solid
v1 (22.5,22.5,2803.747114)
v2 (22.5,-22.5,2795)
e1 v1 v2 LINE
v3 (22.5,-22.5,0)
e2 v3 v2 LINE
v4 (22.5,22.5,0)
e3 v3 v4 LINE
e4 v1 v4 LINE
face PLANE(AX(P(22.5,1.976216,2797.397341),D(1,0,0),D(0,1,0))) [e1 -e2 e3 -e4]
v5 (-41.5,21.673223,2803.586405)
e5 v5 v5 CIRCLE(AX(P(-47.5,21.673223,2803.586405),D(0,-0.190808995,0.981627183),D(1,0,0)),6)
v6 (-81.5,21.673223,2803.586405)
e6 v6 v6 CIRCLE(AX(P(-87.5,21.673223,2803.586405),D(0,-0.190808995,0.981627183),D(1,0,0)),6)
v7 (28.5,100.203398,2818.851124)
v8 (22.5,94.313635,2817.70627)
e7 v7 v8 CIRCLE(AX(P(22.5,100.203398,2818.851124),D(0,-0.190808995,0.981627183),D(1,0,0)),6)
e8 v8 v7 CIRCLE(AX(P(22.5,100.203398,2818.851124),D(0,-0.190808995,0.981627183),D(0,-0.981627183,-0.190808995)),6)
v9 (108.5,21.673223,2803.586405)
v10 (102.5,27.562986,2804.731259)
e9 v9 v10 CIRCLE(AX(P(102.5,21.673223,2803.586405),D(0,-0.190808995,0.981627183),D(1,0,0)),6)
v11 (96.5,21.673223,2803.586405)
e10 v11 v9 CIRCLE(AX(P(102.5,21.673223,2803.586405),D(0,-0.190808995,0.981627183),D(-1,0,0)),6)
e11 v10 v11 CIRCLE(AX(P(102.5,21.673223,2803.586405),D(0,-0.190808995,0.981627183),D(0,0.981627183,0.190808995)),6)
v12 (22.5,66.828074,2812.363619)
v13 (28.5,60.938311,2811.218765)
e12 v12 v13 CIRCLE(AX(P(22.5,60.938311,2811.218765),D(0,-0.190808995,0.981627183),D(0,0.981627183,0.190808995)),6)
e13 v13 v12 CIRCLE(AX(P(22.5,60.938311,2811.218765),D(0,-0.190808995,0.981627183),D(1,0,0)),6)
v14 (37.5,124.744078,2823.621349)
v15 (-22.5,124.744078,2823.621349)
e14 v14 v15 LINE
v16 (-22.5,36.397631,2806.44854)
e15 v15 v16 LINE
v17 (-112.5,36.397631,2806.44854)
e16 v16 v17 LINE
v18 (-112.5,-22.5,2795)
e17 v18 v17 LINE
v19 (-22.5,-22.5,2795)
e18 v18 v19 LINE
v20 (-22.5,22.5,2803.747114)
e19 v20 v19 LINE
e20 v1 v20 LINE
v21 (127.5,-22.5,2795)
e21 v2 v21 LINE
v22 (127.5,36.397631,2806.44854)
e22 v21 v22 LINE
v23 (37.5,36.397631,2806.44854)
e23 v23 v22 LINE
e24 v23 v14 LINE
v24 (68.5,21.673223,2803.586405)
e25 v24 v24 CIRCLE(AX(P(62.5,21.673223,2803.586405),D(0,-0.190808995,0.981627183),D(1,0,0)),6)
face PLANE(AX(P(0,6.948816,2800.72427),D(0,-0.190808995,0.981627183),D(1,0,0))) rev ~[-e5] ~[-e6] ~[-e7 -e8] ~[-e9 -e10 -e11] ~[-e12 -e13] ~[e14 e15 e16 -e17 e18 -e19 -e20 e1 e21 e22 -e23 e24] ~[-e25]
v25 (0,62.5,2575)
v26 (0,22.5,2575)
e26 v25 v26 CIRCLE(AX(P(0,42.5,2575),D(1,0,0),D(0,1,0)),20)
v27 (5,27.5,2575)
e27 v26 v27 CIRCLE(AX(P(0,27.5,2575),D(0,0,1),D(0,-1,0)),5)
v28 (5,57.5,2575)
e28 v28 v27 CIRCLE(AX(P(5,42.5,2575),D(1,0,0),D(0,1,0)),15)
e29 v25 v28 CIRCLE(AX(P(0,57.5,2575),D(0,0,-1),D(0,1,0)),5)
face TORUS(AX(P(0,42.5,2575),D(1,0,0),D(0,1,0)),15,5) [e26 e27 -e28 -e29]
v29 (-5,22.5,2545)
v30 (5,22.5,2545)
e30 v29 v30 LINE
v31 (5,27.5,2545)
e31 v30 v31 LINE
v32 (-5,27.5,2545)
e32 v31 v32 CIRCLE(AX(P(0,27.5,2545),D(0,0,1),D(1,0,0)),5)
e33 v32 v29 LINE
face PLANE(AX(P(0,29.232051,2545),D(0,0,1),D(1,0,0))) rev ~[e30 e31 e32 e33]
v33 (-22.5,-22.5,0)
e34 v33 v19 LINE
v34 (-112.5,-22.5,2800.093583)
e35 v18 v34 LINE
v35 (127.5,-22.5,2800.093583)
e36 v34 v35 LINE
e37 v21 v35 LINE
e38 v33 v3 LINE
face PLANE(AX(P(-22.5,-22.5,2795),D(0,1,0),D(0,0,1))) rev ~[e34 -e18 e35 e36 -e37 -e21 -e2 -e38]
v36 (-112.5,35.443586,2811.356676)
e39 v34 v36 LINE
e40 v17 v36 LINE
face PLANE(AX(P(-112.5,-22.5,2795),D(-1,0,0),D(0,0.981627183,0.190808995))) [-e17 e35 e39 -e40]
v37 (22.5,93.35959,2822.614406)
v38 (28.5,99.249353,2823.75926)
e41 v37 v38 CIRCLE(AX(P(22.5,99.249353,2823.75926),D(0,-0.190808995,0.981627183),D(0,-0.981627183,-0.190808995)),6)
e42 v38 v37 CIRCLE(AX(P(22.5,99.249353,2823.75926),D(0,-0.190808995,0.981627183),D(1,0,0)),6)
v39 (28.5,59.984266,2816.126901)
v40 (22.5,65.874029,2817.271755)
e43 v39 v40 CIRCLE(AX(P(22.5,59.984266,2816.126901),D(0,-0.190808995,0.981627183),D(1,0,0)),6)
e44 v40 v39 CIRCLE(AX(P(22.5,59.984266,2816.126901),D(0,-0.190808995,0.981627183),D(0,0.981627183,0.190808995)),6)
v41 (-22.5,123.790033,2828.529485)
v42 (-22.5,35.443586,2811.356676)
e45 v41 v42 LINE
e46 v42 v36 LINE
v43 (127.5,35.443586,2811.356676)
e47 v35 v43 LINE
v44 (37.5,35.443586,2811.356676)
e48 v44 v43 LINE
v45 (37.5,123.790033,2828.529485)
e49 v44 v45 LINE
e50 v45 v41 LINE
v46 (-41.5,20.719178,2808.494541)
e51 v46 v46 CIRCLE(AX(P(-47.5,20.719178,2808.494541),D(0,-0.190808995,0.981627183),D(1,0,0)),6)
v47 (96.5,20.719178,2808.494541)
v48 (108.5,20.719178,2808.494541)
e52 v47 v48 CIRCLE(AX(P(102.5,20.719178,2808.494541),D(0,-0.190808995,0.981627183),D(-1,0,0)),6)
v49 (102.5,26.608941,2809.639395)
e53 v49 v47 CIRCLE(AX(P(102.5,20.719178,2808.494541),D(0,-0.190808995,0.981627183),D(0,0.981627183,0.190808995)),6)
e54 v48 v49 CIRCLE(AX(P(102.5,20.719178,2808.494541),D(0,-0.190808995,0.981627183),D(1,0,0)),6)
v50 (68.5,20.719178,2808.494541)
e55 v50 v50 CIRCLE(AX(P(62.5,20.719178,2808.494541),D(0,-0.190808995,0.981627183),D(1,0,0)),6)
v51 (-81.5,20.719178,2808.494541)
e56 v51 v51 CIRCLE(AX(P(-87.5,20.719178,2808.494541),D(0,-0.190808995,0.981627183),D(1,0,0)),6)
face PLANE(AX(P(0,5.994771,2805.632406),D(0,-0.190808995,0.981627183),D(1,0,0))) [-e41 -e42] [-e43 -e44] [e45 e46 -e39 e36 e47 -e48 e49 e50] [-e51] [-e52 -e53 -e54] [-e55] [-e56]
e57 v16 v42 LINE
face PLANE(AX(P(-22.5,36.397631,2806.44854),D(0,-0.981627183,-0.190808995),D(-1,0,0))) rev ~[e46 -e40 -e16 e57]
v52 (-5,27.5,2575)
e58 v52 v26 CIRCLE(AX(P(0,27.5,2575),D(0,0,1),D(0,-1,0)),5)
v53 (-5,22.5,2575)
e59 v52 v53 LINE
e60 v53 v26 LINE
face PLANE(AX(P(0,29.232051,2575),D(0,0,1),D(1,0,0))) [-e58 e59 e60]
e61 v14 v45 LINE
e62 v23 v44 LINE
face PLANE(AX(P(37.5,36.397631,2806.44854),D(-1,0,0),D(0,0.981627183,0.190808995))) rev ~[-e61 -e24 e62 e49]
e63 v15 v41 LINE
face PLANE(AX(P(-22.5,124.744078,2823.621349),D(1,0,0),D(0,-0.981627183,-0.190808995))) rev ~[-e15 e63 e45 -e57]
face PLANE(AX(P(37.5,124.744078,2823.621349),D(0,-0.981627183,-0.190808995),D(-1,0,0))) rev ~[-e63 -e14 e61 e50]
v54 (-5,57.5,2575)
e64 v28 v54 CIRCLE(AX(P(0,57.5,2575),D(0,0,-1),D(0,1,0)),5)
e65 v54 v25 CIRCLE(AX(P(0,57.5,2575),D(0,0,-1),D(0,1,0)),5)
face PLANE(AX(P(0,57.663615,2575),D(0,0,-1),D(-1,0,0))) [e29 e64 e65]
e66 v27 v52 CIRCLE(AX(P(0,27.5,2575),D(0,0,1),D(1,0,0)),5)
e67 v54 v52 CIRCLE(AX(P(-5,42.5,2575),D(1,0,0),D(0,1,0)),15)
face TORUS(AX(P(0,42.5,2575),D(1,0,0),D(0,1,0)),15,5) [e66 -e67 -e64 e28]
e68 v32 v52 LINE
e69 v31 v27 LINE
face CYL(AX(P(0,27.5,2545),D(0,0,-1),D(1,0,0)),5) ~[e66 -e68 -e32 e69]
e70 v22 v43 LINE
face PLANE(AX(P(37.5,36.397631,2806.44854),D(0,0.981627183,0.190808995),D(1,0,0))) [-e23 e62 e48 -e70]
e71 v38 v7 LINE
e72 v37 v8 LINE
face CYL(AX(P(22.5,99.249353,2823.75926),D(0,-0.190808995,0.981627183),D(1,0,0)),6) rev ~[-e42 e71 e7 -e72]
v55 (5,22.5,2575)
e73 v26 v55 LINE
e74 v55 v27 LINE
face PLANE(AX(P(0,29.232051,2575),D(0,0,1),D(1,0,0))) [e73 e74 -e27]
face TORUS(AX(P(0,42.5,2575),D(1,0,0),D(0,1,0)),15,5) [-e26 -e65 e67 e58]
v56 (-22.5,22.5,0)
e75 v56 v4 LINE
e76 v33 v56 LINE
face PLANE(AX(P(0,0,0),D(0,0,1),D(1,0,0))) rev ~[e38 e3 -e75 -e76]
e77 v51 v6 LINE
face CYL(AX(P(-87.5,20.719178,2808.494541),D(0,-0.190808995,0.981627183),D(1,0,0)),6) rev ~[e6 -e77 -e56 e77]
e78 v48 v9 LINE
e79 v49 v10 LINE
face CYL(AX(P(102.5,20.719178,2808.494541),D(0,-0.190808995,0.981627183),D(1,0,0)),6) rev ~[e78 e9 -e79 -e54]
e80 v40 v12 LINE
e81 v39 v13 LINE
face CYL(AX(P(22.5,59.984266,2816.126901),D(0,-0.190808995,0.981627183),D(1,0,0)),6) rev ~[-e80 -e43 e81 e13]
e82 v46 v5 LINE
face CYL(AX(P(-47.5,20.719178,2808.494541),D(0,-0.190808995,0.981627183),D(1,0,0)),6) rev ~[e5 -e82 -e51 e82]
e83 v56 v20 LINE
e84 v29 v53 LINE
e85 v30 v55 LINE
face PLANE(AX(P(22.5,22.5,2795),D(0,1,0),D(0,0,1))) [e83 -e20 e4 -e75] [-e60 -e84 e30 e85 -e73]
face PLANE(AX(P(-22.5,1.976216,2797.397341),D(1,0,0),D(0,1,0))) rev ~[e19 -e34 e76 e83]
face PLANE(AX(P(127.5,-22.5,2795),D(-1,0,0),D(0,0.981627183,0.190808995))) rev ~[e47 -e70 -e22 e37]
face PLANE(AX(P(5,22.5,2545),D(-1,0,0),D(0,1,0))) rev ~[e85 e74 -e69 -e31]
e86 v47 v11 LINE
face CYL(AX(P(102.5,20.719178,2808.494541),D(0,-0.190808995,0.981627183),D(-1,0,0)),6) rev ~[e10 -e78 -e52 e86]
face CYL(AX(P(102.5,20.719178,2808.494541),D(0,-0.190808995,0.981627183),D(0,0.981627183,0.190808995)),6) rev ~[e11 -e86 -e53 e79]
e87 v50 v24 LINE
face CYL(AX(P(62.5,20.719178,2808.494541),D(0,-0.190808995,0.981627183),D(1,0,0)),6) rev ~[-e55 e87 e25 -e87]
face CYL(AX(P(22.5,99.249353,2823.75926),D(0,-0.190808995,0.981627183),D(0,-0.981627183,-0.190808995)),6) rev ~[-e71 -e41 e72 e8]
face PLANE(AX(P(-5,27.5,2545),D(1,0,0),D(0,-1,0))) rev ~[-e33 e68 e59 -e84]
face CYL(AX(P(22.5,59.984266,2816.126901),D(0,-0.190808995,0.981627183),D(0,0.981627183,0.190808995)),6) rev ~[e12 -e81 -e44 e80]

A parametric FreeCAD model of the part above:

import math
import FreeCAD as App
import Part
import Sketcher
from FreeCAD import Vector
Q = App.Units.Quantity


def add_polygon(sketch, points):
    """Adds a closed chain of lines whose ends are joined by coincident constraints."""
    first, n = sketch.GeometryCount, len(points)
    for a, b in zip(points, points[1:] + points[:1]):
        sketch.addGeometry(Part.LineSegment(App.Vector(*a, 0), App.Vector(*b, 0)), False)
    for i in range(n):
        sketch.addConstraint(Sketcher.Constraint("Coincident", first + i, 2, first + (i + 1) % n, 1))

doc = App.newDocument("Part")
params = doc.addObject("Spreadsheet::Sheet", "Params")
for row, (alias, value) in enumerate([
    ("sketch1_width", "45 mm"),
    ("pad1_length", "2795 mm"),
    ("sketch2_width", "90 mm"),
    ("sketch2_width2", "240 mm"),
    ("pad2_length", "5 mm"),
    ("sketch3_width", "45 mm"),
    ("pad3_length", "45 mm"),
    ("sketch5_diameter", "12 mm"),
    ("sketch6_radius", "5 mm"),
    ("sketch6_height", "5 mm"),
    ("pad4_length", "30 mm"),
    ("sketch7_radius", "5 mm"),
    ("sketch8_radius", "15 mm"),
], start=1):
    params.set(f"A{row}", alias)
    params.set(f"B{row}", "=" + value)
    params.setAlias(f"B{row}", alias)

body = doc.addObject("PartDesign::Body", "Body")

# Sketch on XY plane
sketch1 = body.newObject("Sketcher::SketchObject", "Sketch")
sketch1.AttachmentSupport = (doc.getObject("XY_Plane"), [""])
sketch1.MapMode = "FlatFace"
add_polygon(sketch1, [(-22, 22), (-22, -22), (22, -22), (22, 22)])  # lines 0-3
sketch1.addConstraint([
    Sketcher.Constraint("Vertical", 0),
    Sketcher.Constraint("Horizontal", 1),
    Sketcher.Constraint("Vertical", 2),
    Sketcher.Constraint("Horizontal", 3),
    Sketcher.Constraint("Symmetric", 0, 2, 2, 2, -1, 1),
    Sketcher.Constraint("Equal", 3, 0),
    Sketcher.Constraint("DistanceX", 1, 1, 1, 2, 45.0),
])
sketch1.setExpression("Constraints[10]", "Params.sketch1_width")
pad1 = body.newObject("PartDesign::Pad", "Pad")
pad1.Profile = sketch1
pad1.setExpression("Length", "Params.pad1_length")
body2 = doc.addObject("PartDesign::Body", "Body001")

# Sketch on an angled plane
sketch2 = body2.newObject("Sketcher::SketchObject", "Sketch001")
sketch2.Placement = App.Placement(Vector(0, -524.331896, 2697.453761), App.Rotation(Vector(1, 0, 0), Vector(0, 0.981627183, 0.190808995), Vector(0, -0.190808995, 0.981627183), "ZXY"))
add_polygon(sketch2, [(-22, 571), (-112, 571), (-112, 511), (128, 511), (128, 571), (38, 571), (38, 661), (-22, 661)])  # lines 0-7
sketch2.addConstraint([
    Sketcher.Constraint("Horizontal", 0),
    Sketcher.Constraint("Vertical", 1),
    Sketcher.Constraint("Horizontal", 2),
    Sketcher.Constraint("Vertical", 3),
    Sketcher.Constraint("Horizontal", 4),
    Sketcher.Constraint("Vertical", 5),
    Sketcher.Constraint("Horizontal", 6),
    Sketcher.Constraint("Vertical", 7),
    Sketcher.Constraint("Horizontal", 0, 2, 3, 2),
    Sketcher.Constraint("Equal", 0, 4),
    Sketcher.Constraint("Equal", 6, 1),
    Sketcher.Constraint("Equal", 4, 5),
    Sketcher.Constraint("DistanceX", 0, 2, 0, 1, 90.0),
    Sketcher.Constraint("DistanceX", 2, 1, 2, 2, 240.0),
    Sketcher.Constraint("DistanceX", 0, 2, -1, 1, 112.5),
    Sketcher.Constraint("DistanceY", -1, 1, 0, 2, 571.22453),
])
sketch2.setExpression("Constraints[20]", "Params.sketch2_width")
sketch2.setExpression("Constraints[21]", "Params.sketch2_width2")
pad2 = body2.newObject("PartDesign::Pad", "Pad001")
pad2.Profile = sketch2
pad2.setExpression("Length", "Params.pad2_length")
body3 = doc.addObject("PartDesign::Body", "Body002")

# Sketch on YZ plane
sketch3 = body3.newObject("Sketcher::SketchObject", "Sketch002")
sketch3.AttachmentSupport = (doc.getObject("YZ_Plane002"), [""])
sketch3.MapMode = "FlatFace"
sketch3.AttachmentOffset = App.Placement(Vector(0, 0, 22.5), App.Rotation())
add_polygon(sketch3, [(-22, 2795), (22, 2795), (22, 2804)])  # lines 0-2
sketch3.addConstraint([
    Sketcher.Constraint("Horizontal", 0),
    Sketcher.Constraint("Vertical", 1),
    Sketcher.Constraint("DistanceX", 0, 1, 0, 2, 45.0),
    Sketcher.Constraint("Angle", 2, Q("-169 deg")),
    Sketcher.Constraint("DistanceY", -1, 1, 0, 2, 2795.0),
    Sketcher.Constraint("DistanceX", -1, 1, 0, 2, 22.5),
])
sketch3.setExpression("Constraints[5]", "Params.sketch3_width")
pad3 = body3.newObject("PartDesign::Pad", "Pad002")
pad3.Profile = sketch3
pad3.setExpression("Length", "Params.pad3_length")
pad3.Reversed = True
doc.recompute()

boolean = body.newObject("PartDesign::Boolean", "Boolean")
boolean.Type = "Fuse"
boolean.addObjects([body3])
doc.recompute()

boolean2 = body.newObject("PartDesign::Boolean", "Boolean001")
boolean2.Type = "Fuse"
boolean2.addObjects([body2])

# Sketch on YZ plane
sketch4 = body.newObject("Sketcher::SketchObject", "Sketch003")
sketch4.AttachmentSupport = (doc.getObject("YZ_Plane"), [""])
sketch4.MapMode = "FlatFace"
sketch4.AttachmentOffset = App.Placement(Vector(0, 0, -22.5), App.Rotation())
add_polygon(sketch4, [(-22.5, 2800.7), (-22.5, 2795), (-25.3, 2795), (-25.3, 2800.7)])  # lines 0-3
sketch4.addConstraint([
    Sketcher.Constraint("Vertical", 0),
    Sketcher.Constraint("Horizontal", 1),
    Sketcher.Constraint("Vertical", 2),
    Sketcher.Constraint("Horizontal", 3),
    Sketcher.Constraint("DistanceY", -1, 1, 0, 2, 2795.0),
    Sketcher.Constraint("DistanceX", 0, 2, -1, 1, 22.5),
    Sketcher.Constraint("DistanceX", 1, 2, 1, 1, 2.779846),
    Sketcher.Constraint("DistanceY", 0, 2, 0, 1, 5.708294),
])
pocket1 = body.newObject("PartDesign::Pocket", "Pocket")
pocket1.Profile = sketch4
pocket1.Type = "ThroughAll"
pocket1.Midplane = True

# Sketch on an angled plane
sketch5 = body.newObject("Sketcher::SketchObject", "Sketch004")
sketch5.Placement = App.Placement(Vector(0, -525.285941, 2702.361897), App.Rotation(Vector(1, 0, 0), Vector(0, 0.981627183, 0.190808995), Vector(0, -0.190808995, 0.981627183), "ZXY"))
sketch5.addGeometry([
    Part.ArcOfCircle(Part.Circle(Vector(102, 556, 0), Vector(0, 0, 1), 6), math.radians(0), math.radians(90)),  # 0
    Part.ArcOfCircle(Part.Circle(Vector(102, 556, 0), Vector(0, 0, 1), 6), math.radians(90), math.radians(180)),  # 1
    Part.ArcOfCircle(Part.Circle(Vector(102, 556, 0), Vector(0, 0, 1), 6), math.radians(180), math.radians(360)),  # 2
    Part.Circle(Vector(62, 556, 0), Vector(0, 0, 1), 6),  # 3
    Part.ArcOfCircle(Part.Circle(Vector(22, 636, 0), Vector(0, 0, 1), 6), math.radians(-90), math.radians(0)),  # 4
    Part.ArcOfCircle(Part.Circle(Vector(22, 636, 0), Vector(0, 0, 1), 6), math.radians(0), math.radians(270)),  # 5
    Part.ArcOfCircle(Part.Circle(Vector(22, 596, 0), Vector(0, 0, 1), 6), math.radians(0), math.radians(90)),  # 6
    Part.ArcOfCircle(Part.Circle(Vector(22, 596, 0), Vector(0, 0, 1), 6), math.radians(90), math.radians(360)),  # 7
    Part.Circle(Vector(-48, 556, 0), Vector(0, 0, 1), 6),  # 8
    Part.Circle(Vector(-88, 556, 0), Vector(0, 0, 1), 6),  # 9
], False)
sketch5.addConstraint([
    Sketcher.Constraint("Tangent", 0, 2, 1, 1),
    Sketcher.Constraint("Tangent", 1, 2, 2, 1),
    Sketcher.Constraint("Tangent", 2, 2, 0, 1),
    Sketcher.Constraint("Tangent", 4, 1, 5, 2),
    Sketcher.Constraint("Coincident", 5, 1, 4, 2),
    Sketcher.Constraint("Tangent", 6, 1, 7, 2),
    Sketcher.Constraint("Coincident", 7, 1, 6, 2),
    Sketcher.Constraint("Equal", 2, 3),
    Sketcher.Constraint("Equal", 3, 4),
    Sketcher.Constraint("Equal", 5, 6),
    Sketcher.Constraint("Equal", 7, 8),
    Sketcher.Constraint("Equal", 8, 9),
    Sketcher.Constraint("Horizontal", 2, 3, 3, 3),
    Sketcher.Constraint("Horizontal", 3, 3, 8, 3),
    Sketcher.Constraint("Horizontal", 8, 3, 9, 3),
    Sketcher.Constraint("Horizontal", 9, 3, 1, 2),
    Sketcher.Constraint("Horizontal", 1, 2, 2, 2),
    Sketcher.Constraint("Horizontal", 4, 3, 5, 1),
    Sketcher.Constraint("Horizontal", 7, 3, 6, 1),
    Sketcher.Constraint("Vertical", 5, 3, 6, 3),
    Sketcher.Constraint("Vertical", 2, 3, 0, 2),
    Sketcher.Constraint("Vertical", 7, 3, 4, 1),
    Sketcher.Constraint("Vertical", 4, 1, 7, 1),
    Sketcher.Constraint("Diameter", 3, 12.0),
    Sketcher.Constraint("DistanceX", 3, 3, 0, 3, 40.0),
    Sketcher.Constraint("DistanceX", 4, 3, 3, 3, 40.0),
    Sketcher.Constraint("DistanceY", 3, 3, 4, 3, 80.0),
    Sketcher.Constraint("DistanceY", 6, 3, 4, 3, 40.0),
    Sketcher.Constraint("DistanceX", 8, 3, 6, 3, 70.0),
    Sketcher.Constraint("DistanceX", 9, 3, 8, 3, 40.0),
    Sketcher.Constraint("DistanceX", -1, 1, 0, 3, 102.5),
    Sketcher.Constraint("DistanceY", -1, 1, 0, 3, 556.22453),
])
sketch5.setExpression("Constraints[23]", "Params.sketch5_diameter")
pocket2 = body.newObject("PartDesign::Pocket", "Pocket001")
pocket2.Profile = sketch5
pocket2.Type = "ThroughAll"

# Sketch on XY plane
sketch6 = body.newObject("Sketcher::SketchObject", "Sketch005")
sketch6.AttachmentSupport = (doc.getObject("XY_Plane"), [""])
sketch6.MapMode = "FlatFace"
sketch6.AttachmentOffset = App.Placement(Vector(0, 0, 2545), App.Rotation())
sketch6.addGeometry([
    Part.ArcOfCircle(Part.Circle(Vector(0, 28, 0), Vector(0, 0, 1), 5), math.radians(0), math.radians(180)),
    Part.LineSegment(Vector(-5, 28, 0), Vector(-5, 22, 0)),
    Part.LineSegment(Vector(-5, 22, 0), Vector(5, 22, 0)),
    Part.LineSegment(Vector(5, 22, 0), Vector(5, 28, 0)),
], False)
sketch6.addConstraint([
    Sketcher.Constraint("Tangent", 0, 2, 1, 1),
    Sketcher.Constraint("Coincident", 1, 2, 2, 1),
    Sketcher.Constraint("Coincident", 2, 2, 3, 1),
    Sketcher.Constraint("Tangent", 3, 2, 0, 1),
    Sketcher.Constraint("Vertical", 1),
    Sketcher.Constraint("Horizontal", 2),
    Sketcher.Constraint("Vertical", 3),
    Sketcher.Constraint("PointOnObject", 0, 3, -2),
    Sketcher.Constraint("Radius", 0, 5.0),
    Sketcher.Constraint("DistanceY", 1, 2, 1, 1, 5.0),
    Sketcher.Constraint("DistanceY", -1, 1, 0, 3, 27.5),
])
sketch6.setExpression("Constraints[8]", "Params.sketch6_radius")
sketch6.setExpression("Constraints[9]", "Params.sketch6_height")
pad4 = body.newObject("PartDesign::Pad", "Pad003")
pad4.Profile = sketch6
pad4.setExpression("Length", "Params.pad4_length")

# Sketch on XY plane
sketch7 = body.newObject("Sketcher::SketchObject", "Sketch006")
sketch7.AttachmentSupport = (doc.getObject("XY_Plane"), [""])
sketch7.MapMode = "FlatFace"
sketch7.AttachmentOffset = App.Placement(Vector(0, 0, 2575), App.Rotation())
sketch7.addGeometry([
    Part.ArcOfCircle(Part.Circle(Vector(0, 28, 0), Vector(0, 0, 1), 5), math.radians(-90), math.radians(0)),
    Part.ArcOfCircle(Part.Circle(Vector(0, 28, 0), Vector(0, 0, 1), 5), math.radians(0), math.radians(180)),
    Part.ArcOfCircle(Part.Circle(Vector(0, 28, 0), Vector(0, 0, 1), 5), math.radians(180), math.radians(270)),
], False)
sketch7.addConstraint([
    Sketcher.Constraint("Tangent", 0, 2, 1, 1),
    Sketcher.Constraint("Tangent", 1, 2, 2, 1),
    Sketcher.Constraint("Tangent", 2, 2, 0, 1),
    Sketcher.Constraint("Symmetric", 0, 2, 1, 2, -2),
    Sketcher.Constraint("PointOnObject", 2, 2, -2),
    Sketcher.Constraint("Horizontal", 2, 3, 0, 2),
    Sketcher.Constraint("Radius", 0, 5.0),
    Sketcher.Constraint("DistanceY", -1, 1, 0, 3, 27.5),
])
sketch7.setExpression("Constraints[6]", "Params.sketch7_radius")

# Sketch on YZ plane
sketch8 = body.newObject("Sketcher::SketchObject", "Sketch007")
sketch8.AttachmentSupport = (doc.getObject("YZ_Plane"), [""])
sketch8.MapMode = "FlatFace"
sketch8.addGeometry(Part.ArcOfCircle(Part.Circle(Vector(42, 2575, 0), Vector(0, 0, 1), 15), math.radians(0), math.radians(180)), False)
sketch8.addConstraint([
    Sketcher.Constraint("Radius", 0, 15.0),
    Sketcher.Constraint("DistanceY", -1, 1, 0, 3, 2575.0),
    Sketcher.Constraint("DistanceY", -1, 1, 0, 1, 2575.0),
    Sketcher.Constraint("DistanceY", -1, 1, 0, 2, 2575.0),
    Sketcher.Constraint("DistanceX", -1, 1, 0, 3, 42.5),
])
sketch8.setExpression("Constraints[0]", "Params.sketch8_radius")
doc.recompute()

additivepipe = body.newObject("PartDesign::AdditivePipe", "AdditivePipe")
additivepipe.Profile = sketch7
additivepipe.Spine = (sketch8, ["Edge1"])

doc.recompute()
